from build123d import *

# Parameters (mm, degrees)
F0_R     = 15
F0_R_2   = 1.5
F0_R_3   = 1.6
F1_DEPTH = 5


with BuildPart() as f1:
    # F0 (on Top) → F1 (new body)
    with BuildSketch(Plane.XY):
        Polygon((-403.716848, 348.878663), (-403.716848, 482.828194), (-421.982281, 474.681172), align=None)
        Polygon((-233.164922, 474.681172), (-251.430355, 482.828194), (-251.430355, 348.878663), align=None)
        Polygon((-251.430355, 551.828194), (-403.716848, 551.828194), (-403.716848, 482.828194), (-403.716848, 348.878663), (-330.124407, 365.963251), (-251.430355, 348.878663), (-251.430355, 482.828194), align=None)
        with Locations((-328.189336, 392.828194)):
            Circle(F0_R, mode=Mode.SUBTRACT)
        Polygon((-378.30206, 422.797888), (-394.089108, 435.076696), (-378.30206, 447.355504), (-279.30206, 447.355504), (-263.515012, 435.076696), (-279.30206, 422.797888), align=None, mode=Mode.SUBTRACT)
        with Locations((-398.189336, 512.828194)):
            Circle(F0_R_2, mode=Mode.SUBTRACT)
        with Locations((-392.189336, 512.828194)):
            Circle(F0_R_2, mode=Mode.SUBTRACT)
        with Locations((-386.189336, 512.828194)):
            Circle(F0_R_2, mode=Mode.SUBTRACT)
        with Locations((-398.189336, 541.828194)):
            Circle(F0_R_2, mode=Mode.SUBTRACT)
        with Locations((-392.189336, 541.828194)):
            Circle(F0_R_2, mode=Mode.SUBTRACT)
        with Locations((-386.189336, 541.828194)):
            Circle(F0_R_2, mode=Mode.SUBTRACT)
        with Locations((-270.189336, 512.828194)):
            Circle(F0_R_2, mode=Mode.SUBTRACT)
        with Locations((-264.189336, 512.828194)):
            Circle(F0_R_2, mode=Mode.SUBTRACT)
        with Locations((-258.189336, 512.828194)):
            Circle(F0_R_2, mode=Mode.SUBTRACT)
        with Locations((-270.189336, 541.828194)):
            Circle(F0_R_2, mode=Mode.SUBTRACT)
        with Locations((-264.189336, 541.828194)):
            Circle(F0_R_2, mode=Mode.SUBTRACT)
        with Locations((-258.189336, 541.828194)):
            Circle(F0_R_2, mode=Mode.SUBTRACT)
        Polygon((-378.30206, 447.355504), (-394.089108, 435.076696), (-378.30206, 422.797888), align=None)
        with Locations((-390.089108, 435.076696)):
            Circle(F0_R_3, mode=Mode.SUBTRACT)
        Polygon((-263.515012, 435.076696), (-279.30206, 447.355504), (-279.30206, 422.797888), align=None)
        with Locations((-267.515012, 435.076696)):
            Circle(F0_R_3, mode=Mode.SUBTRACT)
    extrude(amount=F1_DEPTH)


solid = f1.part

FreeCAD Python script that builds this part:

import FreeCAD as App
import Part
import Sketcher
from FreeCAD import Vector
Q = App.Units.Quantity


def add_polygon(sketch, points):
    """Adds a closed chain of lines whose ends are joined by coincident constraints."""
    first, n = sketch.GeometryCount, len(points)
    for a, b in zip(points, points[1:] + points[:1]):
        sketch.addGeometry(Part.LineSegment(App.Vector(*a, 0), App.Vector(*b, 0)), False)
    for i in range(n):
        sketch.addConstraint(Sketcher.Constraint("Coincident", first + i, 2, first + (i + 1) % n, 1))

doc = App.newDocument("Part")
body = doc.addObject("PartDesign::Body", "Body")

sketch1 = body.newObject("Sketcher::SketchObject", "Sketch")
sketch1.AttachmentSupport = (doc.getObject("XY_Plane"), [""])
sketch1.MapMode = "FlatFace"
add_polygon(sketch1, [(-403.716848, 482.828194), (-421.982281, 474.681172), (-403.716848, 348.878663), (-330.124407, 365.963251), (-251.430355, 348.878663), (-233.164922, 474.681172), (-251.430355, 482.828194), (-251.430355, 551.828194), (-403.716848, 551.828194)])
sketch1.addGeometry(Part.Circle(Vector(-390.089108, 435.076696, 0), Vector(0, 0, 1), 1.6), False)
add_polygon(sketch1, [(-279.30206, 422.797888), (-378.30206, 422.797888), (-378.30206, 447.355504), (-279.30206, 447.355504)])
sketch1.addGeometry(Part.Circle(Vector(-328.189336, 392.828194, 0), Vector(0, 0, 1), 15), False)
sketch1.addGeometry(Part.Circle(Vector(-267.515012, 435.076696, 0), Vector(0, 0, 1), 1.6), False)
sketch1.addGeometry(Part.Circle(Vector(-398.189336, 512.828194, 0), Vector(0, 0, 1), 1.5), False)
sketch1.addGeometry(Part.Circle(Vector(-392.189336, 512.828194, 0), Vector(0, 0, 1), 1.5), False)
sketch1.addGeometry(Part.Circle(Vector(-386.189336, 512.828194, 0), Vector(0, 0, 1), 1.5), False)
sketch1.addGeometry(Part.Circle(Vector(-398.189336, 541.828194, 0), Vector(0, 0, 1), 1.5), False)
sketch1.addGeometry(Part.Circle(Vector(-392.189336, 541.828194, 0), Vector(0, 0, 1), 1.5), False)
sketch1.addGeometry(Part.Circle(Vector(-386.189336, 541.828194, 0), Vector(0, 0, 1), 1.5), False)
sketch1.addGeometry(Part.Circle(Vector(-270.189336, 512.828194, 0), Vector(0, 0, 1), 1.5), False)
sketch1.addGeometry(Part.Circle(Vector(-264.189336, 512.828194, 0), Vector(0, 0, 1), 1.5), False)
sketch1.addGeometry(Part.Circle(Vector(-258.189336, 512.828194, 0), Vector(0, 0, 1), 1.5), False)
sketch1.addGeometry(Part.Circle(Vector(-270.189336, 541.828194, 0), Vector(0, 0, 1), 1.5), False)
sketch1.addGeometry(Part.Circle(Vector(-264.189336, 541.828194, 0), Vector(0, 0, 1), 1.5), False)
sketch1.addGeometry(Part.Circle(Vector(-258.189336, 541.828194, 0), Vector(0, 0, 1), 1.5), False)
sketch1.addConstraint(Sketcher.Constraint("Vertical", 6))
sketch1.addConstraint(Sketcher.Constraint("Horizontal", 7))
sketch1.addConstraint(Sketcher.Constraint("Vertical", 8))
sketch1.addConstraint(Sketcher.Constraint("Horizontal", 10))
sketch1.addConstraint(Sketcher.Constraint("Vertical", 11))
sketch1.addConstraint(Sketcher.Constraint("Horizontal", 12))
sketch1.addConstraint(Sketcher.Constraint("Vertical", 13))
sketch1.addConstraint(Sketcher.Constraint("Equal", 9, 15))
sketch1.addConstraint(Sketcher.Constraint("Equal", 16, 17))
sketch1.addConstraint(Sketcher.Constraint("Equal", 17, 18))
sketch1.addConstraint(Sketcher.Constraint("Equal", 18, 19))
sketch1.addConstraint(Sketcher.Constraint("Equal", 19, 20))
sketch1.addConstraint(Sketcher.Constraint("Equal", 20, 21))
sketch1.addConstraint(Sketcher.Constraint("Equal", 21, 22))
sketch1.addConstraint(Sketcher.Constraint("Equal", 22, 23))
sketch1.addConstraint(Sketcher.Constraint("Equal", 23, 24))
sketch1.addConstraint(Sketcher.Constraint("Equal", 24, 25))
sketch1.addConstraint(Sketcher.Constraint("Equal", 25, 26))
sketch1.addConstraint(Sketcher.Constraint("Equal", 26, 27))
sketch1.addConstraint(Sketcher.Constraint("Horizontal", 9, 3, 15, 3))
sketch1.addConstraint(Sketcher.Constraint("Horizontal", 16, 3, 17, 3))
sketch1.addConstraint(Sketcher.Constraint("Horizontal", 17, 3, 18, 3))
sketch1.addConstraint(Sketcher.Constraint("Horizontal", 19, 3, 20, 3))
sketch1.addConstraint(Sketcher.Constraint("Horizontal", 20, 3, 21, 3))
sketch1.addConstraint(Sketcher.Constraint("Horizontal", 18, 3, 22, 3))
sketch1.addConstraint(Sketcher.Constraint("Horizontal", 22, 3, 23, 3))
sketch1.addConstraint(Sketcher.Constraint("Horizontal", 23, 3, 24, 3))
sketch1.addConstraint(Sketcher.Constraint("Horizontal", 21, 3, 25, 3))
sketch1.addConstraint(Sketcher.Constraint("Horizontal", 25, 3, 26, 3))
sketch1.addConstraint(Sketcher.Constraint("Horizontal", 26, 3, 27, 3))
sketch1.addConstraint(Sketcher.Constraint("Horizontal", 1, 2, 3, 2))
sketch1.addConstraint(Sketcher.Constraint("Horizontal", 0, 2, 4, 2))
sketch1.addConstraint(Sketcher.Constraint("Horizontal", 5, 2, 8, 2))
sketch1.addConstraint(Sketcher.Constraint("Vertical", 16, 3, 19, 3))
sketch1.addConstraint(Sketcher.Constraint("Vertical", 17, 3, 20, 3))
sketch1.addConstraint(Sketcher.Constraint("Vertical", 18, 3, 21, 3))
sketch1.addConstraint(Sketcher.Constraint("Vertical", 22, 3, 25, 3))
sketch1.addConstraint(Sketcher.Constraint("Vertical", 23, 3, 26, 3))
sketch1.addConstraint(Sketcher.Constraint("Vertical", 24, 3, 27, 3))
sketch1.addConstraint(Sketcher.Constraint("Vertical", 3, 2, 5, 2))
sketch1.addConstraint(Sketcher.Constraint("Vertical", 1, 2, 7, 2))
sketch1.addConstraint(Sketcher.Constraint("Equal", 1, 4))
sketch1.addConstraint(Sketcher.Constraint("Diameter", 14, Q("30 mm")))
sketch1.addConstraint(Sketcher.Constraint("Diameter", 16, Q("3 mm")))
sketch1.addConstraint(Sketcher.Constraint("Diameter", 9, Q("3.2 mm")))
sketch1.addConstraint(Sketcher.Constraint("DistanceX", 10, 2, 10, 1, Q("99 mm")))
sketch1.addConstraint(Sketcher.Constraint("DistanceY", 6, 1, 6, 2, Q("69 mm")))
sketch1.addConstraint(Sketcher.Constraint("Distance", 0, Q("20 mm")))
sketch1.addConstraint(Sketcher.Constraint("DistanceX", 16, 3, 14, 3, Q("70 mm")))
sketch1.addConstraint(Sketcher.Constraint("DistanceY", 14, 3, 16, 3, Q("120 mm")))
sketch1.addConstraint(Sketcher.Constraint("DistanceX", 16, 3, 17, 3, Q("6 mm")))
sketch1.addConstraint(Sketcher.Constraint("DistanceX", 17, 3, 18, 3, Q("6 mm")))
sketch1.addConstraint(Sketcher.Constraint("DistanceY", 16, 3, 19, 3, Q("29 mm")))
sketch1.addConstraint(Sketcher.Constraint("DistanceX", 18, 3, 22, 3, Q("116 mm")))
sketch1.addConstraint(Sketcher.Constraint("DistanceX", 22, 3, 23, 3, Q("6 mm")))
sketch1.addConstraint(Sketcher.Constraint("DistanceX", 23, 3, 24, 3, Q("6 mm")))
sketch1.addConstraint(Sketcher.Constraint("DistanceY", 5, 2, 24, 3, Q("30 mm")))
sketch1.addConstraint(Sketcher.Constraint("DistanceY", 9, 3, 16, 3, Q("77.751498 mm")))
sketch1.addConstraint(Sketcher.Constraint("DistanceX", 9, 3, 2, 2, Q("59.964701 mm")))
sketch1.addConstraint(Sketcher.Constraint("DistanceX", 7, 2, 7, 1, Q("152.286493 mm")))
sketch1.addConstraint(Sketcher.Constraint("DistanceY", 11, 1, 11, 2, Q("24.557616 mm")))
sketch1.addConstraint(Sketcher.Constraint("DistanceX", 9, 3, -1, 1, Q("390.089108 mm")))
sketch1.addConstraint(Sketcher.Constraint("DistanceX", 15, 3, -1, 1, Q("267.515012 mm")))
sketch1.addConstraint(Sketcher.Constraint("DistanceX", 0, 2, -1, 1, Q("421.982281 mm")))
sketch1.addConstraint(Sketcher.Constraint("DistanceY", -1, 1, 0, 2, Q("474.681172 mm")))
sketch1.addConstraint(Sketcher.Constraint("DistanceX", 1, 2, -1, 1, Q("403.716848 mm")))
sketch1.addConstraint(Sketcher.Constraint("DistanceY", -1, 1, 2, 2, Q("365.963251 mm")))
sketch1.addConstraint(Sketcher.Constraint("DistanceX", 10, 2, -1, 1, Q("378.30206 mm")))
sketch1.addConstraint(Sketcher.Constraint("DistanceY", -1, 1, 10, 2, Q("422.797888 mm")))
sketch1.addConstraint(Sketcher.Constraint("DistanceX", 9, 3, 14, 3, Q("61.899772 mm")))
sketch1.addConstraint(Sketcher.Constraint("DistanceY", 1, 2, 14, 3, Q("43.949531 mm")))
pad1 = body.newObject("PartDesign::Pad", "Pad")
pad1.Profile = sketch1
pad1.Length = 5

doc.recompute()
